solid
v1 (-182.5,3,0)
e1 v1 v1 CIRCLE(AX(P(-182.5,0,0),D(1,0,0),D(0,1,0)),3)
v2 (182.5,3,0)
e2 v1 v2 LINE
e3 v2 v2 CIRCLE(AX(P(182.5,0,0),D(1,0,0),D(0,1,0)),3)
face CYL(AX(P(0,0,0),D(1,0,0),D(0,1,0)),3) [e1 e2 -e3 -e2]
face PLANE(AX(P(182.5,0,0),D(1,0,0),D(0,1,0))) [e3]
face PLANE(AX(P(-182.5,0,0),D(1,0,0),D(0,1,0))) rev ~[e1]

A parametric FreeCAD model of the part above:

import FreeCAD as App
import Part
import Sketcher
from FreeCAD import Vector
Q = App.Units.Quantity

doc = App.newDocument("Part")
params = doc.addObject("Spreadsheet::Sheet", "Params")
for row, (alias, value) in enumerate([
    ("sketch1_diameter", "6 mm"),
    ("pad1_length", "365 mm"),
], start=1):
    params.set(f"A{row}", alias)
    params.set(f"B{row}", "=" + value)
    params.setAlias(f"B{row}", alias)

body = doc.addObject("PartDesign::Body", "Body")

sketch1 = body.newObject("Sketcher::SketchObject", "Sketch")
sketch1.AttachmentSupport = (doc.getObject("YZ_Plane"), [""])
sketch1.MapMode = "FlatFace"
sketch1.addGeometry(Part.Circle(Vector(0, 0, 0), Vector(0, 0, 1), 3), False)
sketch1.addConstraint(Sketcher.Constraint("Coincident", 0, 3, -1, 1))
sketch1.addConstraint(Sketcher.Constraint("Diameter", 0, Q("6 mm")))
sketch1.setExpression("Constraints[1]", "Params.sketch1_diameter")
pad1 = body.newObject("PartDesign::Pad", "Pad")
pad1.Profile = sketch1
pad1.setExpression("Length", "Params.pad1_length")
pad1.Midplane = True

doc.recompute()
